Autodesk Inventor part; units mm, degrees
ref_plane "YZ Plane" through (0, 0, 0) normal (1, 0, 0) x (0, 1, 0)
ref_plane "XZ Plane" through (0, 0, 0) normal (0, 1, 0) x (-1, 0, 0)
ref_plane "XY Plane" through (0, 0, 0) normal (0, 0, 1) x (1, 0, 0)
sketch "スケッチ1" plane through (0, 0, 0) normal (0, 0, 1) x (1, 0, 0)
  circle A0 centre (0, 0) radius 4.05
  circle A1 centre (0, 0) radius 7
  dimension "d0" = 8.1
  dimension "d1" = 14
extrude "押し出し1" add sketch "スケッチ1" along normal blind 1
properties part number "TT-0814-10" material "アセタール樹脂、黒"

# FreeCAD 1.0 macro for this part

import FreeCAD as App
import Part
import Sketcher
Q = App.Units.Quantity

doc = App.newDocument("Part")
body = doc.addObject("PartDesign::Body", "Body")

sketch1 = body.newObject("Sketcher::SketchObject", "Sketch")
sketch1.AttachmentSupport = (doc.getObject("XY_Plane"), [""])
sketch1.MapMode = "FlatFace"
sketch1.addGeometry(Part.Circle(App.Vector(0, 0, 0), App.Vector(0, 0, 1), 7), False)
sketch1.addGeometry(Part.Circle(App.Vector(0, 0, 0), App.Vector(0, 0, 1), 4), False)
sketch1.addConstraint(Sketcher.Constraint("Coincident", 0, 3, -1, 1))
sketch1.addConstraint(Sketcher.Constraint("Coincident", 1, 3, -1, 1))
sketch1.addConstraint(Sketcher.Constraint("Diameter", 0, Q("14 mm")))
sketch1.addConstraint(Sketcher.Constraint("Diameter", 1, Q("8.1 mm")))
pad1 = body.newObject("PartDesign::Pad", "Pad")
pad1.Profile = sketch1
pad1.Length = 1

doc.recompute()
